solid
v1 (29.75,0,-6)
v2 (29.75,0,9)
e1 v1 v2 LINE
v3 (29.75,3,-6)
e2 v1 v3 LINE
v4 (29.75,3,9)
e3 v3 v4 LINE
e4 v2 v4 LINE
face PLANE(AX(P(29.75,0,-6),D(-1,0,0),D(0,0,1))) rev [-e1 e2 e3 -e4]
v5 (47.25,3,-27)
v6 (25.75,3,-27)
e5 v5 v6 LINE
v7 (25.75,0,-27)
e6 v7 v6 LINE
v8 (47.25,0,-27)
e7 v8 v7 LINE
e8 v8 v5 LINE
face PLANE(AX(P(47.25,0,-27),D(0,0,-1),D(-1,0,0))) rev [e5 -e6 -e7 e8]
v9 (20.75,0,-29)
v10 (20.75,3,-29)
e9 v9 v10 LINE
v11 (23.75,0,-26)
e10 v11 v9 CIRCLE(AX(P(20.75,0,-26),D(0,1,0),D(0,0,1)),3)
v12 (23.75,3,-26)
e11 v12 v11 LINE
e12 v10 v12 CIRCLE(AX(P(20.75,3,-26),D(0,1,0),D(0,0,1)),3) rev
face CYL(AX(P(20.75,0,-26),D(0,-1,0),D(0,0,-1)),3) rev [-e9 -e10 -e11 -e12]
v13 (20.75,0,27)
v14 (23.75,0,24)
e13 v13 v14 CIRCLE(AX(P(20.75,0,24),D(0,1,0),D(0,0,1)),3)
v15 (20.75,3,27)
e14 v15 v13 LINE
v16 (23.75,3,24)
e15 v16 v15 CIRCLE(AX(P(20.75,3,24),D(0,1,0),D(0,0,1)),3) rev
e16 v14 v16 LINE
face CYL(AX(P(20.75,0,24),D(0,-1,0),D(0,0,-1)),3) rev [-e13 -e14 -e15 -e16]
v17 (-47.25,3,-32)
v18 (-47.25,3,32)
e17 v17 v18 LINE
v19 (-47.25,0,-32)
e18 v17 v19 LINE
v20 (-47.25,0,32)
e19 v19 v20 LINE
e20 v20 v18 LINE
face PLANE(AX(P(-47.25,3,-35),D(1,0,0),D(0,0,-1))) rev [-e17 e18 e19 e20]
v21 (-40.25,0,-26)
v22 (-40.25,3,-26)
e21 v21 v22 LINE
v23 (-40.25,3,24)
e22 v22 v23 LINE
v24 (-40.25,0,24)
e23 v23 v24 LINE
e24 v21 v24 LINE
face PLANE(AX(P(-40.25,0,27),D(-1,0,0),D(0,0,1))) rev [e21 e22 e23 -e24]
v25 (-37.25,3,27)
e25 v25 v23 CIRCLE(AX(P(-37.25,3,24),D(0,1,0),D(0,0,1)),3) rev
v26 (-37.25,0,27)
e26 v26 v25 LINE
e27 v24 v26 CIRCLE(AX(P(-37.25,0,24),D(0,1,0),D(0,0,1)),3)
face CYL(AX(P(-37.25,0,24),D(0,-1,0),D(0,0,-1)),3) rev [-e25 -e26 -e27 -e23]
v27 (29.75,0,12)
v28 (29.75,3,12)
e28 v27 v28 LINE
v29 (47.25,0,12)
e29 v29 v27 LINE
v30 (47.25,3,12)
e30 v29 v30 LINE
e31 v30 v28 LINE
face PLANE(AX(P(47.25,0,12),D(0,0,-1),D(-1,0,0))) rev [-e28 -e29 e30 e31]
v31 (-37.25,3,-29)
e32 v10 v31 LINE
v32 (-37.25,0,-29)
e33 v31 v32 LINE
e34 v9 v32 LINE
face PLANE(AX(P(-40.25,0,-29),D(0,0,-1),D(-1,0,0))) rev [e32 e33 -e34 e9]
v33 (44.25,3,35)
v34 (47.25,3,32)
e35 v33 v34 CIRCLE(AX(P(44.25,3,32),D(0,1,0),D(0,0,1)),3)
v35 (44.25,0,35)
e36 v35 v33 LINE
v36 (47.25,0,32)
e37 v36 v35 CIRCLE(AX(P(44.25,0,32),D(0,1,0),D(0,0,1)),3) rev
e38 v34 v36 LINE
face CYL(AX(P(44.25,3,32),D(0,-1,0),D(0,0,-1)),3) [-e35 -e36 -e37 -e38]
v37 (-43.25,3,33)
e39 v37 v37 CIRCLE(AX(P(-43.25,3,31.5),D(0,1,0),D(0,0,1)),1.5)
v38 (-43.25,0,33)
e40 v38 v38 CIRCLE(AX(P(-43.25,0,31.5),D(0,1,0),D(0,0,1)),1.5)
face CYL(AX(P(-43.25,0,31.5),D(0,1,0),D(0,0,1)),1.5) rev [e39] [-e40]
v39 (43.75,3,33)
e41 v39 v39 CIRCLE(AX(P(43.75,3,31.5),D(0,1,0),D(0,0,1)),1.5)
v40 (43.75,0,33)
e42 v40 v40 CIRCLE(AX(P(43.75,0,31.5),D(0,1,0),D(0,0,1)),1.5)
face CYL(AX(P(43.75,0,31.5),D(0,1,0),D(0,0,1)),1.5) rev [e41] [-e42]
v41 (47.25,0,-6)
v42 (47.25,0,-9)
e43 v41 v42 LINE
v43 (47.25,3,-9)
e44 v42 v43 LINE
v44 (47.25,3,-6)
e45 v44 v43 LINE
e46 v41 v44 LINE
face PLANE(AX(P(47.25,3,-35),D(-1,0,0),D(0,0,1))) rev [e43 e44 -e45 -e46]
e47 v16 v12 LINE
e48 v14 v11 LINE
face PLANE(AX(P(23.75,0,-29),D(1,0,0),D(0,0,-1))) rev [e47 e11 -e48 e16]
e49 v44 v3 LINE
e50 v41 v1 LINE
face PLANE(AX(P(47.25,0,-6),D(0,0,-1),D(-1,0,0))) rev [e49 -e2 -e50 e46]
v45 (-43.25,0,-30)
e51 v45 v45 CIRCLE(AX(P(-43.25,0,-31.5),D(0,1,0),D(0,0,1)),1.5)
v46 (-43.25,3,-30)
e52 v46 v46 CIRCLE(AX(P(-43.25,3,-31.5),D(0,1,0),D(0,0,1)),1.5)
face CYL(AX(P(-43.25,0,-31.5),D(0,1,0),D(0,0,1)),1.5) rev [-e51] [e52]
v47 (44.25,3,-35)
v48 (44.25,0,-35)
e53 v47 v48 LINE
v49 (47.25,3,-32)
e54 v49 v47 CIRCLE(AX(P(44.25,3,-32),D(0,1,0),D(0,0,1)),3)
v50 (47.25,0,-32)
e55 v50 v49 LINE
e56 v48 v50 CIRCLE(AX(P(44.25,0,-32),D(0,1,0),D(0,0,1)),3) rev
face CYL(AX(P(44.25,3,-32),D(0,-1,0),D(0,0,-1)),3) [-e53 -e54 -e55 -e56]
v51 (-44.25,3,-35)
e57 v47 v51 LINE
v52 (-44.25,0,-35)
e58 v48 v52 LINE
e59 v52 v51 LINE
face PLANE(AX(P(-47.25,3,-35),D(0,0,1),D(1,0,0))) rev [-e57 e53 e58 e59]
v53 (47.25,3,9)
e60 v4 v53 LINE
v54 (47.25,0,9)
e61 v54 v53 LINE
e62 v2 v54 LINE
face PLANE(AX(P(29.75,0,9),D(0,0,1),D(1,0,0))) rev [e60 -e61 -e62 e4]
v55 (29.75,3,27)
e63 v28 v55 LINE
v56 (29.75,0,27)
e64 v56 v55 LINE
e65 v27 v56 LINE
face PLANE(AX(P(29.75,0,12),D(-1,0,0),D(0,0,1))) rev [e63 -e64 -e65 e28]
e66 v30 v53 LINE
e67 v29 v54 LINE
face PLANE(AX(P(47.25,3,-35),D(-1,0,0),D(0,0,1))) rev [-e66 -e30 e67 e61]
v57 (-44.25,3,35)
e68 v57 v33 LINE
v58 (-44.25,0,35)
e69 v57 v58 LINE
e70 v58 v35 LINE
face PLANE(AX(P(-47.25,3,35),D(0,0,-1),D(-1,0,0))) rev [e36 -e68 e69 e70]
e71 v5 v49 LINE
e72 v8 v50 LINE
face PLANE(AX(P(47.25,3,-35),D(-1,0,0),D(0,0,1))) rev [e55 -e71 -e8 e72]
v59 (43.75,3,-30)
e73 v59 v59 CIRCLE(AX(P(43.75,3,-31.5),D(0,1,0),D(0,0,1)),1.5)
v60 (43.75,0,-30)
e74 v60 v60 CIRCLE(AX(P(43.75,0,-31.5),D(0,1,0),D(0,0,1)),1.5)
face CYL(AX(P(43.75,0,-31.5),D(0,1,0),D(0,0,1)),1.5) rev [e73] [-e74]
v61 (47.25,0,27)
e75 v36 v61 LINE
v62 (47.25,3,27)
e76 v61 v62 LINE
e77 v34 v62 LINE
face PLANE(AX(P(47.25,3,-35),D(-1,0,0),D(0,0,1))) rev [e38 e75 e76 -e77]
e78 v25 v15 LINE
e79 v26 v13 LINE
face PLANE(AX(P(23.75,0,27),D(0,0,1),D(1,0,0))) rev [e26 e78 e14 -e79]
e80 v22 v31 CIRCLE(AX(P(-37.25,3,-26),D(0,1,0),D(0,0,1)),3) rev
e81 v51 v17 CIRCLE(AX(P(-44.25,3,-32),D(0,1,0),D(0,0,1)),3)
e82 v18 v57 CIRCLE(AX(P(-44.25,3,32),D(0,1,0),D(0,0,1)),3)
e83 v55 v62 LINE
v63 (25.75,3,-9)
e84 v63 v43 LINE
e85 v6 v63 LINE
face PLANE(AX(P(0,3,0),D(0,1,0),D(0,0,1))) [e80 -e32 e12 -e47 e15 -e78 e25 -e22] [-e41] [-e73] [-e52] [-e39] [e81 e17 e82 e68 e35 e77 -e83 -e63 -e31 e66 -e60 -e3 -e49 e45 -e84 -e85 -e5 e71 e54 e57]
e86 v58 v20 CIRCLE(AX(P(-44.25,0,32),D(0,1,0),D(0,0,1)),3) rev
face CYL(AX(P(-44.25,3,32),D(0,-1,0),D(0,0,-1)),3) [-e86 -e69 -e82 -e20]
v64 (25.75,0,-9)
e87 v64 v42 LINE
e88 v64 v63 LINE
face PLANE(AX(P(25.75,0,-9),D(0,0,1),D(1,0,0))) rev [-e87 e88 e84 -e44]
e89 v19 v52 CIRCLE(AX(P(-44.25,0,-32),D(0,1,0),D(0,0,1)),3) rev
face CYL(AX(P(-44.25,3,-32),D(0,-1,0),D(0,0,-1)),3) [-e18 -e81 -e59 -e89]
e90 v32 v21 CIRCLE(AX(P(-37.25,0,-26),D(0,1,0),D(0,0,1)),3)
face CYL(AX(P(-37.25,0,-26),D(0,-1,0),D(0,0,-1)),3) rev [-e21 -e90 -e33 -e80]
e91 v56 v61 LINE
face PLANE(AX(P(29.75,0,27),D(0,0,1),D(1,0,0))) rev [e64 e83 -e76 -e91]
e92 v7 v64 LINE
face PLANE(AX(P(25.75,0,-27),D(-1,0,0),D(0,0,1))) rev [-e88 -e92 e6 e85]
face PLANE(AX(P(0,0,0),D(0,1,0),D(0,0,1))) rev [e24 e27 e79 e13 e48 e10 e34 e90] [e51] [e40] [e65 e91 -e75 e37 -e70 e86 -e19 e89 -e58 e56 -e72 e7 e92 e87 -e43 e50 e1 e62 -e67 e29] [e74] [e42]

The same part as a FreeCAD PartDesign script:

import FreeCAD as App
import Part
import Sketcher
from FreeCAD import Vector
Q = App.Units.Quantity


def edges_at(feature, points):
    """Names of the edges that pass closest to the given points."""
    edges = feature.Shape.Edges
    near = lambda p: min(range(len(edges)), key=lambda i: edges[i].distToShape(Part.Vertex(*p))[0])
    return sorted({f"Edge{near(p) + 1}" for p in points})

doc = App.newDocument("Part")
params = doc.addObject("Spreadsheet::Sheet", "Params")
for row, (alias, value) in enumerate([
    ("sketch1_height", "70 mm"),
    ("sketch1_width", "94.5 mm"),
    ("pad1_length", "3 mm"),
    ("sketch2_diameter", "3 mm"),
    ("fillet_radius", "3 mm"),
    ("sketch3_width", "64 mm"),
    ("sketch3_height", "56 mm"),
    ("sketch3_height2", "18 mm"),
    ("sketch3_height3", "15 mm"),
    ("sketch3_width2", "21.5 mm"),
    ("fillet2_radius", "3 mm"),
], start=1):
    params.set(f"A{row}", alias)
    params.set(f"B{row}", "=" + value)
    params.setAlias(f"B{row}", alias)

body = doc.addObject("PartDesign::Body", "Body")

# Sketch on XZ plane
sketch1 = body.newObject("Sketcher::SketchObject", "Sketch")
sketch1.AttachmentSupport = (doc.getObject("XZ_Plane"), [""])
sketch1.MapMode = "FlatFace"
sketch1.addGeometry([
    Part.LineSegment(Vector(-47, -35, 0), Vector(-47, 35, 0)),
    Part.LineSegment(Vector(-47, 35, 0), Vector(47, 35, 0)),
    Part.LineSegment(Vector(47, 35, 0), Vector(47, -35, 0)),
    Part.LineSegment(Vector(47, -35, 0), Vector(-47, -35, 0)),
], False)
sketch1.addConstraint([
    Sketcher.Constraint("Coincident", 0, 2, 1, 1),
    Sketcher.Constraint("Coincident", 1, 2, 2, 1),
    Sketcher.Constraint("Coincident", 2, 2, 3, 1),
    Sketcher.Constraint("Coincident", 3, 2, 0, 1),
    Sketcher.Constraint("Vertical", 0),
    Sketcher.Constraint("Horizontal", 1),
    Sketcher.Constraint("Vertical", 2),
    Sketcher.Constraint("Horizontal", 3),
    Sketcher.Constraint("Symmetric", 0, 2, 2, 2, -1, 1),
    Sketcher.Constraint("DistanceY", 0, 1, 0, 2, Q("70 mm")),
    Sketcher.Constraint("DistanceX", 1, 1, 1, 2, Q("94.5 mm")),
])
sketch1.setExpression("Constraints[9]", "Params.sketch1_height")
sketch1.setExpression("Constraints[10]", "Params.sketch1_width")
pad1 = body.newObject("PartDesign::Pad", "Pad")
pad1.Profile = sketch1
pad1.setExpression("Length", "Params.pad1_length")
pad1.Reversed = True

# Sketch on XZ plane
sketch2 = body.newObject("Sketcher::SketchObject", "Sketch001")
sketch2.AttachmentSupport = (doc.getObject("XZ_Plane"), [""])
sketch2.MapMode = "FlatFace"
sketch2.AttachmentOffset = App.Placement(Vector(0, 0, -3), App.Rotation())
sketch2.addGeometry([
    Part.Circle(Vector(43.8, -31.5, 0), Vector(0, 0, 1), 1.5),
    Part.Circle(Vector(-43.2, -31.5, 0), Vector(0, 0, 1), 1.5),
    Part.Circle(Vector(-43.2, 31.5, 0), Vector(0, 0, 1), 1.5),
    Part.Circle(Vector(43.8, 31.5, 0), Vector(0, 0, 1), 1.5),
], False)
sketch2.addConstraint([
    Sketcher.Constraint("Equal", 0, 1),
    Sketcher.Constraint("Equal", 1, 2),
    Sketcher.Constraint("Equal", 2, 3),
    Sketcher.Constraint("Symmetric", 1, 3, 2, 3, -1),
    Sketcher.Constraint("Symmetric", 0, 3, 3, 3, -1),
    Sketcher.Constraint("Horizontal", 0, 3, 1, 3),
    Sketcher.Constraint("Diameter", 0, Q("3 mm")),
    Sketcher.Constraint("DistanceX", 1, 3, 0, 3, Q("87 mm")),
    Sketcher.Constraint("DistanceY", 1, 3, 2, 3, Q("63 mm")),
    Sketcher.Constraint("DistanceX", -1, 1, 0, 3, Q("43.75 mm")),
])
sketch2.setExpression("Constraints[6]", "Params.sketch2_diameter")
pocket1 = body.newObject("PartDesign::Pocket", "Pocket")
pocket1.Profile = sketch2
pocket1.Type = "ThroughAll"
pocket1.Reversed = True
doc.recompute()

fillet = body.newObject("PartDesign::Fillet", "Fillet")
fillet.Base = (pocket1, edges_at(pocket1, [
    (47.25, 1.5, 35),
    (-47.25, 1.5, 35),
    (-47.25, 1.5, -35),
    (47.25, 1.5, -35),
]))
fillet.setExpression("Radius", "Params.fillet_radius")

# Sketch on XZ plane
sketch3 = body.newObject("Sketcher::SketchObject", "Sketch002")
sketch3.AttachmentSupport = (doc.getObject("XZ_Plane"), [""])
sketch3.MapMode = "FlatFace"
sketch3.AttachmentOffset = App.Placement(Vector(0, 0, -3), App.Rotation())
sketch3.addGeometry([
    Part.LineSegment(Vector(-40, -29, 0), Vector(-40, 27, 0)),  # 0
    Part.LineSegment(Vector(-40, 27, 0), Vector(24, 27, 0)),  # 1
    Part.LineSegment(Vector(24, 27, 0), Vector(24, -29, 0)),  # 2
    Part.LineSegment(Vector(24, -29, 0), Vector(-40, -29, 0)),  # 3
    Part.LineSegment(Vector(26, -27, 0), Vector(26, -9, 0)),  # 4
    Part.LineSegment(Vector(26, -9, 0), Vector(47, -9, 0)),  # 5
    Part.LineSegment(Vector(47, -9, 0), Vector(47, -27, 0)),  # 6
    Part.LineSegment(Vector(47, -27, 0), Vector(26, -27, 0)),  # 7
    Part.LineSegment(Vector(30, -6, 0), Vector(30, 9, 0)),  # 8
    Part.LineSegment(Vector(30, 9, 0), Vector(47, 9, 0)),  # 9
    Part.LineSegment(Vector(47, 9, 0), Vector(47, -6, 0)),  # 10
    Part.LineSegment(Vector(47, -6, 0), Vector(30, -6, 0)),  # 11
    Part.LineSegment(Vector(30, 12, 0), Vector(30, 27, 0)),  # 12
    Part.LineSegment(Vector(30, 27, 0), Vector(47, 27, 0)),  # 13
    Part.LineSegment(Vector(47, 27, 0), Vector(47, 12, 0)),  # 14
    Part.LineSegment(Vector(47, 12, 0), Vector(30, 12, 0)),  # 15
], False)
sketch3.addConstraint([
    Sketcher.Constraint("Coincident", 0, 2, 1, 1),
    Sketcher.Constraint("Coincident", 1, 2, 2, 1),
    Sketcher.Constraint("Coincident", 2, 2, 3, 1),
    Sketcher.Constraint("Coincident", 3, 2, 0, 1),
    Sketcher.Constraint("Coincident", 4, 2, 5, 1),
    Sketcher.Constraint("Coincident", 5, 2, 6, 1),
    Sketcher.Constraint("Coincident", 6, 2, 7, 1),
    Sketcher.Constraint("Coincident", 7, 2, 4, 1),
    Sketcher.Constraint("Coincident", 8, 2, 9, 1),
    Sketcher.Constraint("Coincident", 9, 2, 10, 1),
    Sketcher.Constraint("Coincident", 10, 2, 11, 1),
    Sketcher.Constraint("Coincident", 11, 2, 8, 1),
    Sketcher.Constraint("Coincident", 12, 2, 13, 1),
    Sketcher.Constraint("Coincident", 13, 2, 14, 1),
    Sketcher.Constraint("Coincident", 14, 2, 15, 1),
    Sketcher.Constraint("Coincident", 15, 2, 12, 1),
    Sketcher.Constraint("Vertical", 0),
    Sketcher.Constraint("Horizontal", 1),
    Sketcher.Constraint("Vertical", 2),
    Sketcher.Constraint("Horizontal", 3),
    Sketcher.Constraint("Vertical", 4),
    Sketcher.Constraint("Horizontal", 5),
    Sketcher.Constraint("Vertical", 6),
    Sketcher.Constraint("Horizontal", 7),
    Sketcher.Constraint("Vertical", 8),
    Sketcher.Constraint("Horizontal", 9),
    Sketcher.Constraint("Vertical", 10),
    Sketcher.Constraint("Horizontal", 11),
    Sketcher.Constraint("Vertical", 12),
    Sketcher.Constraint("Horizontal", 13),
    Sketcher.Constraint("Vertical", 14),
    Sketcher.Constraint("Horizontal", 15),
    Sketcher.Constraint("Symmetric", 5, 2, 9, 2, -1),
    Sketcher.Constraint("Symmetric", 6, 2, 13, 2, -1),
    Sketcher.Constraint("Horizontal", 1, 2, 12, 2),
    Sketcher.Constraint("Vertical", 11, 2, 12, 2),
    Sketcher.Constraint("Equal", 10, 12),
    Sketcher.Constraint("DistanceX", 1, 1, 1, 2, Q("64 mm")),
    Sketcher.Constraint("DistanceY", 0, 1, 0, 2, Q("56 mm")),
    Sketcher.Constraint("DistanceY", 4, 1, 4, 2, Q("18 mm")),
    Sketcher.Constraint("DistanceY", 8, 1, 8, 2, Q("15 mm")),
    Sketcher.Constraint("DistanceX", 5, 1, 5, 2, Q("21.5 mm")),
    Sketcher.Constraint("DistanceX", 9, 1, 9, 2, Q("17.5 mm")),
    Sketcher.Constraint("DistanceY", -1, 1, 0, 2, Q("27 mm")),
    Sketcher.Constraint("DistanceX", 2, 2, 4, 2, Q("2 mm")),
    Sketcher.Constraint("DistanceX", 0, 2, -1, 1, Q("40.25 mm")),
])
sketch3.setExpression("Constraints[37]", "Params.sketch3_width")
sketch3.setExpression("Constraints[38]", "Params.sketch3_height")
sketch3.setExpression("Constraints[39]", "Params.sketch3_height2")
sketch3.setExpression("Constraints[40]", "Params.sketch3_height3")
sketch3.setExpression("Constraints[41]", "Params.sketch3_width2")
pocket2 = body.newObject("PartDesign::Pocket", "Pocket001")
pocket2.Profile = sketch3
pocket2.Type = "ThroughAll"
pocket2.Reversed = True
doc.recompute()

fillet2 = body.newObject("PartDesign::Fillet", "Fillet001")
fillet2.Base = (pocket2, edges_at(pocket2, [
    (-40.25, 1.5, 27),
    (-40.25, 1.5, -29),
    (23.75, 1.5, -29),
    (23.75, 1.5, 27),
]))
fillet2.setExpression("Radius", "Params.fillet2_radius")

doc.recompute()
